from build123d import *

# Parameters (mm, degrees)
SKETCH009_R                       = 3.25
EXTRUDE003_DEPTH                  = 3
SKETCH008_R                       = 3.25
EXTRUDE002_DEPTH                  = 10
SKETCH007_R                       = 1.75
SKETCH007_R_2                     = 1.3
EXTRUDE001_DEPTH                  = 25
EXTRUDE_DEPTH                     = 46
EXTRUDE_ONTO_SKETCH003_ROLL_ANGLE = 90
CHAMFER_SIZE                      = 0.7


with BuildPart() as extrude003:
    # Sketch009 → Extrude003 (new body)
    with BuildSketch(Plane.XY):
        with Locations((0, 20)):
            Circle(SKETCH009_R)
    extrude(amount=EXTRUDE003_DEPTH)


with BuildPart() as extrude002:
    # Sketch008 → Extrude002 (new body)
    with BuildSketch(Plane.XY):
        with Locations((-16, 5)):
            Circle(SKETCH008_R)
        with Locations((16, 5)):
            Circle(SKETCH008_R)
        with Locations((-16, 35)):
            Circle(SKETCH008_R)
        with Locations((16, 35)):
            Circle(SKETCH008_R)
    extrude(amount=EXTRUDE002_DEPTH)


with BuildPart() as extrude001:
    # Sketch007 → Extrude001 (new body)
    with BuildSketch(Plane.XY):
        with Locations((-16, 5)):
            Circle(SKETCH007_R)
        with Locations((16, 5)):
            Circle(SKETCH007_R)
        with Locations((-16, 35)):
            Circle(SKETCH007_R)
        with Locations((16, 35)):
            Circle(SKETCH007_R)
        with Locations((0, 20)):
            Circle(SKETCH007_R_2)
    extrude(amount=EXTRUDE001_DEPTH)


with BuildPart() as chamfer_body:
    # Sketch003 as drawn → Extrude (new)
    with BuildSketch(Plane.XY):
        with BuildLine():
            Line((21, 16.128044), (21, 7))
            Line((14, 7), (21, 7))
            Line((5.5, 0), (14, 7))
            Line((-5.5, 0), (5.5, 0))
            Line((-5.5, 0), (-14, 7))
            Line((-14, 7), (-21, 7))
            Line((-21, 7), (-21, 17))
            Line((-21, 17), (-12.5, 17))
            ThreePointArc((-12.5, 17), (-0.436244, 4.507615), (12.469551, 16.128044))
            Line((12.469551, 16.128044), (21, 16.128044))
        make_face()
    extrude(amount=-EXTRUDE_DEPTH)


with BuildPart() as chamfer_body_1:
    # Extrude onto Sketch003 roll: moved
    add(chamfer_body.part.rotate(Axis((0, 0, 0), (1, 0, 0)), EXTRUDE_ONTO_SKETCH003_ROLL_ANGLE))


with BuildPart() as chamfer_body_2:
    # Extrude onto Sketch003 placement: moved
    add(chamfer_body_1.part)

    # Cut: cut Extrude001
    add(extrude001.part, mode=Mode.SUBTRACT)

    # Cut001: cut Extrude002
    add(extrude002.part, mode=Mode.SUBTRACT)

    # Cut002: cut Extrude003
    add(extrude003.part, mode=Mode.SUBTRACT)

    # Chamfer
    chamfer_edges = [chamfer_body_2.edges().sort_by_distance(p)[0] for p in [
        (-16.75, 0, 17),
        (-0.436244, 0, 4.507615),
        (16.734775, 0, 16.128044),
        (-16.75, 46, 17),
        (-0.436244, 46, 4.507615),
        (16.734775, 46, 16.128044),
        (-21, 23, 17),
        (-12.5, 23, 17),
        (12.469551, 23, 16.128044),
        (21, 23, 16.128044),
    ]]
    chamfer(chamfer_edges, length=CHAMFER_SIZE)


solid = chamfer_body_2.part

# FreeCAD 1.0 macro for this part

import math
import FreeCAD as App
import Part
import Sketcher
from FreeCAD import Vector


def edges_at(feature, points):
    """Names of the edges that pass closest to the given points."""
    edges = feature.Shape.Edges
    near = lambda p: min(range(len(edges)), key=lambda i: edges[i].distToShape(Part.Vertex(*p))[0])
    return sorted({f"Edge{near(p) + 1}" for p in points})

doc = App.newDocument("Part")
body = doc.addObject("PartDesign::Body", "Body")

sketch1 = body.newObject("Sketcher::SketchObject", "Sketch")
sketch1.AttachmentSupport = (doc.getObject("XY_Plane"), [""])
sketch1.MapMode = "FlatFace"
sketch1.addGeometry(Part.Circle(Vector(0, 20, 0), Vector(0, 0, 1), 3.25), False)
sketch1.addConstraint(Sketcher.Constraint("PointOnObject", 0, 3, -2))
sketch1.addConstraint(Sketcher.Constraint("Diameter", 0, 6.5))
sketch1.addConstraint(Sketcher.Constraint("DistanceY", -1, 1, 0, 3, 20.0))
pad1 = body.newObject("PartDesign::Pad", "Pad")
pad1.Profile = sketch1
pad1.Length = 3
body2 = doc.addObject("PartDesign::Body", "Body001")
body2.AllowCompound = True

sketch2 = body2.newObject("Sketcher::SketchObject", "Sketch001")
sketch2.AttachmentSupport = (doc.getObject("XY_Plane001"), [""])
sketch2.MapMode = "FlatFace"
sketch2.addGeometry(Part.Circle(Vector(-16, 5, 0), Vector(0, 0, 1), 3.25), False)
sketch2.addGeometry(Part.Circle(Vector(16, 5, 0), Vector(0, 0, 1), 3.25), False)
sketch2.addGeometry(Part.Circle(Vector(-16, 35, 0), Vector(0, 0, 1), 3.25), False)
sketch2.addGeometry(Part.Circle(Vector(16, 35, 0), Vector(0, 0, 1), 3.25), False)
sketch2.addConstraint(Sketcher.Constraint("Equal", 0, 1))
sketch2.addConstraint(Sketcher.Constraint("Equal", 1, 2))
sketch2.addConstraint(Sketcher.Constraint("Equal", 2, 3))
sketch2.addConstraint(Sketcher.Constraint("Symmetric", 0, 3, 1, 3, -2))
sketch2.addConstraint(Sketcher.Constraint("Symmetric", 2, 3, 3, 3, -2))
sketch2.addConstraint(Sketcher.Constraint("Vertical", 0, 3, 2, 3))
sketch2.addConstraint(Sketcher.Constraint("Diameter", 0, 6.5))
sketch2.addConstraint(Sketcher.Constraint("DistanceX", 0, 3, -1, 1, 16.0))
sketch2.addConstraint(Sketcher.Constraint("DistanceY", -1, 1, 0, 3, 5.0))
sketch2.addConstraint(Sketcher.Constraint("DistanceY", -1, 1, 2, 3, 35.0))
pad2 = body2.newObject("PartDesign::Pad", "Pad001")
pad2.Profile = sketch2
pad2.Length = 10
body3 = doc.addObject("PartDesign::Body", "Body002")
body3.AllowCompound = True

sketch3 = body3.newObject("Sketcher::SketchObject", "Sketch002")
sketch3.AttachmentSupport = (doc.getObject("XY_Plane002"), [""])
sketch3.MapMode = "FlatFace"
sketch3.addGeometry(Part.Circle(Vector(-16, 5, 0), Vector(0, 0, 1), 1.75), False)
sketch3.addGeometry(Part.Circle(Vector(16, 5, 0), Vector(0, 0, 1), 1.75), False)
sketch3.addGeometry(Part.Circle(Vector(-16, 35, 0), Vector(0, 0, 1), 1.75), False)
sketch3.addGeometry(Part.Circle(Vector(16, 35, 0), Vector(0, 0, 1), 1.75), False)
sketch3.addGeometry(Part.Circle(Vector(0, 20, 0), Vector(0, 0, 1), 1.3), False)
sketch3.addConstraint(Sketcher.Constraint("Equal", 0, 1))
sketch3.addConstraint(Sketcher.Constraint("Equal", 1, 2))
sketch3.addConstraint(Sketcher.Constraint("Equal", 2, 3))
sketch3.addConstraint(Sketcher.Constraint("Symmetric", 0, 3, 1, 3, -2))
sketch3.addConstraint(Sketcher.Constraint("Symmetric", 2, 3, 3, 3, -2))
sketch3.addConstraint(Sketcher.Constraint("PointOnObject", 4, 3, -2))
sketch3.addConstraint(Sketcher.Constraint("Vertical", 0, 3, 2, 3))
sketch3.addConstraint(Sketcher.Constraint("Diameter", 0, 3.5))
sketch3.addConstraint(Sketcher.Constraint("Diameter", 4, 2.6))
sketch3.addConstraint(Sketcher.Constraint("DistanceX", 0, 3, -1, 1, 16.0))
sketch3.addConstraint(Sketcher.Constraint("DistanceY", -1, 1, 0, 3, 5.0))
sketch3.addConstraint(Sketcher.Constraint("DistanceY", -1, 1, 2, 3, 35.0))
sketch3.addConstraint(Sketcher.Constraint("DistanceY", -1, 1, 4, 3, 20.0))
pad3 = body3.newObject("PartDesign::Pad", "Pad002")
pad3.Profile = sketch3
pad3.Length = 25
body4 = doc.addObject("PartDesign::Body", "Body003")

sketch4 = body4.newObject("Sketcher::SketchObject", "Sketch003")
sketch4.AttachmentSupport = (doc.getObject("XY_Plane003"), [""])
sketch4.MapMode = "FlatFace"
sketch4.addGeometry(Part.LineSegment(Vector(21, 7, 0), Vector(21, 16.128044, 0)), False)
sketch4.addGeometry(Part.LineSegment(Vector(21, 16.128044, 0), Vector(12.469551, 16.128044, 0)), False)
sketch4.addGeometry(Part.ArcOfCircle(Part.Circle(Vector(0, 17.000001, 0), Vector(0, 0, 1), 12.5), math.radians(-179.999998), math.radians(-4.000003)), False)
sketch4.addGeometry(Part.LineSegment(Vector(-12.5, 17, 0), Vector(-21, 17, 0)), False)
sketch4.addGeometry(Part.LineSegment(Vector(-21, 17, 0), Vector(-21, 7, 0)), False)
sketch4.addGeometry(Part.LineSegment(Vector(-21, 7, 0), Vector(-14, 7, 0)), False)
sketch4.addGeometry(Part.LineSegment(Vector(-14, 7, 0), Vector(-5.5, 0, 0)), False)
sketch4.addGeometry(Part.LineSegment(Vector(-5.5, 0, 0), Vector(5.5, 0, 0)), False)
sketch4.addGeometry(Part.LineSegment(Vector(5.5, 0, 0), Vector(14, 7, 0)), False)
sketch4.addGeometry(Part.LineSegment(Vector(14, 7, 0), Vector(21, 7, 0)), False)
sketch4.addConstraint(Sketcher.Constraint("Coincident", 0, 2, 1, 1))
sketch4.addConstraint(Sketcher.Constraint("Coincident", 1, 2, 2, 2))
sketch4.addConstraint(Sketcher.Constraint("Coincident", 2, 1, 3, 1))
sketch4.addConstraint(Sketcher.Constraint("Coincident", 3, 2, 4, 1))
sketch4.addConstraint(Sketcher.Constraint("Coincident", 4, 2, 5, 1))
sketch4.addConstraint(Sketcher.Constraint("Coincident", 5, 2, 6, 1))
sketch4.addConstraint(Sketcher.Constraint("Coincident", 6, 2, 7, 1))
sketch4.addConstraint(Sketcher.Constraint("Coincident", 7, 2, 8, 1))
sketch4.addConstraint(Sketcher.Constraint("Coincident", 8, 2, 9, 1))
sketch4.addConstraint(Sketcher.Constraint("Coincident", 9, 2, 0, 1))
sketch4.addConstraint(Sketcher.Constraint("Vertical", 0))
sketch4.addConstraint(Sketcher.Constraint("Horizontal", 1))
sketch4.addConstraint(Sketcher.Constraint("Horizontal", 3))
sketch4.addConstraint(Sketcher.Constraint("Vertical", 4))
sketch4.addConstraint(Sketcher.Constraint("Horizontal", 5))
sketch4.addConstraint(Sketcher.Constraint("Horizontal", 7))
sketch4.addConstraint(Sketcher.Constraint("Horizontal", 9))
sketch4.addConstraint(Sketcher.Constraint("Symmetric", 6, 2, 7, 2, -1, 1))
sketch4.addConstraint(Sketcher.Constraint("Symmetric", 5, 2, 8, 2, -2))
sketch4.addConstraint(Sketcher.Constraint("PointOnObject", 2, 3, -2))
sketch4.addConstraint(Sketcher.Constraint("Equal", 5, 9))
sketch4.addConstraint(Sketcher.Constraint("Radius", 2, 12.5))
sketch4.addConstraint(Sketcher.Constraint("DistanceX", 5, 1, 5, 2, 7.0))
sketch4.addConstraint(Sketcher.Constraint("DistanceX", 7, 1, 7, 2, 11.0))
sketch4.addConstraint(Sketcher.Constraint("DistanceY", 4, 2, 4, 1, 10.0))
sketch4.addConstraint(Sketcher.Constraint("DistanceX", 3, 2, 3, 1, 8.5))
sketch4.addConstraint(Sketcher.Constraint("DistanceY", -1, 1, 2, 3, 17.000001))
sketch4.addConstraint(Sketcher.Constraint("DistanceY", -1, 1, 2, 1, 17.0))
sketch4.addConstraint(Sketcher.Constraint("DistanceX", 1, 2, 1, 1, 8.530449))
pad4 = body4.newObject("PartDesign::Pad", "Pad003")
pad4.Profile = sketch4
pad4.Length = 46
pad4.Reversed = True
body5 = doc.addObject("PartDesign::Body", "Body004")
doc.recompute()

body4.Placement = App.Placement(Vector(0, 0, 0), App.Rotation(Vector(1, 0, 0), 90))
boolean = body5.newObject("PartDesign::Boolean", "Boolean")
boolean.Type = "Fuse"
boolean.addObjects([body4])
doc.recompute()

boolean2 = body5.newObject("PartDesign::Boolean", "Boolean001")
boolean2.Type = "Cut"
boolean2.addObjects([body3])
doc.recompute()

boolean3 = body5.newObject("PartDesign::Boolean", "Boolean002")
boolean3.Type = "Cut"
boolean3.addObjects([body2])
doc.recompute()

boolean4 = body5.newObject("PartDesign::Boolean", "Boolean003")
boolean4.Type = "Cut"
boolean4.addObjects([body])
doc.recompute()

chamfer = body5.newObject("PartDesign::Chamfer", "Chamfer")
chamfer.Base = (boolean4, edges_at(boolean4, [
    (-16.75, 0, 17),
    (-0.436, 0, 4.508),
    (16.735, 0, 16.128),
    (-16.75, 46, 17),
    (-0.436, 46, 4.508),
    (16.735, 46, 16.128),
    (-21, 23, 17),
    (-12.5, 23, 17),
    (12.47, 23, 16.128),
    (21, 23, 16.128),
]))
chamfer.Size = 0.7

doc.recompute()
